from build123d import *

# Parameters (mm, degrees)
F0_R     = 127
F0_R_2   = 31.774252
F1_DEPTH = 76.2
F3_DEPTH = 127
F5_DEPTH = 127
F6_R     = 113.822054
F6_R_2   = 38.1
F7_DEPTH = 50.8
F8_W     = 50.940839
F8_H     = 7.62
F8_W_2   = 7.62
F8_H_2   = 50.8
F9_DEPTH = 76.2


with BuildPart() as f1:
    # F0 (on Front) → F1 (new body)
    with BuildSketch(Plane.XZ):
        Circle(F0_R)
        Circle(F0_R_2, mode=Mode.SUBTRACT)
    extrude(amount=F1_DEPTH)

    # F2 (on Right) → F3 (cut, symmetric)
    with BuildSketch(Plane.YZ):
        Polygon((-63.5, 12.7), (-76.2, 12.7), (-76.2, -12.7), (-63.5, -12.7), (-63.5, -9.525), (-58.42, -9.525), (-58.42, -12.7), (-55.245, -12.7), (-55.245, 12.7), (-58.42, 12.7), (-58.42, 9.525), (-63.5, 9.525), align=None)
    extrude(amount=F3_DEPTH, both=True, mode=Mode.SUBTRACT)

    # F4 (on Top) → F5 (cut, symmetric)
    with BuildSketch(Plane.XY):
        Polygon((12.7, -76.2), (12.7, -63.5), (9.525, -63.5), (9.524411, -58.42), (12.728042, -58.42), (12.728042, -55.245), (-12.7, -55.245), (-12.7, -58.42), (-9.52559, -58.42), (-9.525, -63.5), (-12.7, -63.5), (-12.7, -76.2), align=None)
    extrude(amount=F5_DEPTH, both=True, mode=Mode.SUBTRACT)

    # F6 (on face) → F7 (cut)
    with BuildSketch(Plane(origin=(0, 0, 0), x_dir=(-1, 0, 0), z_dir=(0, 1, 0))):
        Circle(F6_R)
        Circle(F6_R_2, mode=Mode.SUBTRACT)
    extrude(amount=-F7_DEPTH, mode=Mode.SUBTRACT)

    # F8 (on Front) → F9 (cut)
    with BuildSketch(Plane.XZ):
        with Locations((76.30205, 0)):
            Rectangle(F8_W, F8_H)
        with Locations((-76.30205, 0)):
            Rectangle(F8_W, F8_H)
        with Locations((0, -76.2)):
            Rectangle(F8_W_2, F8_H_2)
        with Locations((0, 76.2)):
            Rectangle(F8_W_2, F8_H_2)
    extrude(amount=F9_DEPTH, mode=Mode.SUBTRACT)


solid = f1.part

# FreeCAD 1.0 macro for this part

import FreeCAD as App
import Part
import Sketcher

V = App.Vector
Q = App.Units.Quantity


def add_polygon(sketch, points):
    """Adds a closed chain of lines whose ends are joined by coincident constraints."""
    first, n = sketch.GeometryCount, len(points)
    for a, b in zip(points, points[1:] + points[:1]):
        sketch.addGeometry(Part.LineSegment(App.Vector(*a, 0), App.Vector(*b, 0)), False)
    for i in range(n):
        sketch.addConstraint(Sketcher.Constraint("Coincident", first + i, 2, first + (i + 1) % n, 1))

doc = App.newDocument("Part")
params = doc.addObject("Spreadsheet::Sheet", "Params")
for row, (alias, value) in enumerate([
    ("sketch1_diameter", "10 in"),
    ("pad1_length", "3 in"),
    ("sketch2_height", "1 in"),
    ("sketch2_width", "0.5 in"),
    ("sketch2_width2", "0.2 in"),
    ("sketch2_width3", "0.125 in"),
    ("pocket1_length", "10 in"),
    ("sketch3_width", "1 in"),
    ("sketch3_height", "0.5 in"),
    ("sketch3_length", "0.2 in"),
    ("sketch3_width2", "0.125 in"),
    ("pocket2_length", "10 in"),
    ("sketch4_diameter", "3 in"),
    ("pocket3_length", "2 in"),
    ("sketch5_height", "2 in"),
    ("sketch5_width", "0.3 in"),
    ("pocket4_length", "3 in"),
], start=1):
    params.set(f"A{row}", alias)
    params.set(f"B{row}", "=" + value)
    params.setAlias(f"B{row}", alias)

body = doc.addObject("PartDesign::Body", "Body")

# Sketch on XZ plane
sketch1 = doc.addObject("Sketcher::SketchObject", "Sketch")
body.addObject(sketch1)
sketch1.AttachmentSupport = (doc.XZ_Plane, [""])
sketch1.MapMode = "FlatFace"
sketch1.addGeometry([
    Part.Circle(V(0, 0, 0), V(0, 0, 1), 127),
    Part.Circle(V(0, 0, 0), V(0, 0, 1), 32),
], False)
sketch1.addConstraint([
    Sketcher.Constraint("Coincident", 0, 3, -1, 1),
    Sketcher.Constraint("Coincident", 1, 3, -1, 1),
    Sketcher.Constraint("Diameter", 0, Q("10 in")),
    Sketcher.Constraint("Diameter", 1, 63.548504),
])
sketch1.setExpression("Constraints[2]", "Params.sketch1_diameter")
pad1 = doc.addObject("PartDesign::Pad", "Pad")
body.addObject(pad1)
pad1.Profile = sketch1
pad1.setExpression("Length", "Params.pad1_length")

# Sketch on YZ plane
sketch2 = doc.addObject("Sketcher::SketchObject", "Sketch001")
body.addObject(sketch2)
sketch2.AttachmentSupport = (doc.YZ_Plane, [""])
sketch2.MapMode = "FlatFace"
add_polygon(sketch2, [(-63.5, 12.7), (-76.2, 12.7), (-76.2, -12.7), (-63.5, -12.7), (-63.5, -9.5), (-58.4, -9.5), (-58.4, -12.7), (-55.2, -12.7), (-55.2, 12.7), (-58.4, 12.7), (-58.4, 9.5), (-63.5, 9.5)])  # lines 0-11
sketch2.addConstraint([
    Sketcher.Constraint("Horizontal", 0),
    Sketcher.Constraint("Vertical", 1),
    Sketcher.Constraint("Horizontal", 2),
    Sketcher.Constraint("Vertical", 3),
    Sketcher.Constraint("Horizontal", 4),
    Sketcher.Constraint("Vertical", 5),
    Sketcher.Constraint("Horizontal", 6),
    Sketcher.Constraint("Vertical", 7),
    Sketcher.Constraint("Horizontal", 8),
    Sketcher.Constraint("Vertical", 9),
    Sketcher.Constraint("Horizontal", 10),
    Sketcher.Constraint("Vertical", 11),
    Sketcher.Constraint("Symmetric", 5, 2, 8, 2, -1),
    Sketcher.Constraint("Symmetric", 3, 2, 10, 2, -1),
    Sketcher.Constraint("Horizontal", 2, 2, 5, 2),
    Sketcher.Constraint("Horizontal", 0, 2, 7, 2),
    Sketcher.Constraint("Equal", 8, 3),
    Sketcher.Constraint("DistanceY", 1, 2, 1, 1, Q("1 in")),
    Sketcher.Constraint("DistanceX", 0, 2, 0, 1, Q("0.5 in")),
    Sketcher.Constraint("DistanceX", 4, 1, 4, 2, Q("0.2 in")),
    Sketcher.Constraint("DistanceX", 0, 2, -1, 1, Q("3 in")),
    Sketcher.Constraint("DistanceX", 6, 1, 6, 2, Q("0.125 in")),
])
sketch2.setExpression("Constraints[29]", "Params.sketch2_height")
sketch2.setExpression("Constraints[30]", "Params.sketch2_width")
sketch2.setExpression("Constraints[31]", "Params.sketch2_width2")
sketch2.setExpression("Constraints[33]", "Params.sketch2_width3")
pocket1 = doc.addObject("PartDesign::Pocket", "Pocket")
body.addObject(pocket1)
pocket1.Profile = sketch2
pocket1.setExpression("Length", "Params.pocket1_length")
pocket1.Midplane = True

# Sketch on XY plane
sketch3 = doc.addObject("Sketcher::SketchObject", "Sketch002")
body.addObject(sketch3)
sketch3.AttachmentSupport = (doc.XY_Plane, [""])
sketch3.MapMode = "FlatFace"
add_polygon(sketch3, [(12.7, -76.2), (12.7, -63.5), (9.5, -63.5), (9.5, -58.4), (12.7, -58.4), (12.7, -55.2), (-12.7, -55.2), (-12.7, -58.4), (-9.5, -58.4), (-9.5, -63.5), (-12.7, -63.5), (-12.7, -76.2)])  # lines 0-11
sketch3.addConstraint([
    Sketcher.Constraint("Vertical", 0),
    Sketcher.Constraint("Horizontal", 1),
    Sketcher.Constraint("Horizontal", 3),
    Sketcher.Constraint("Vertical", 4),
    Sketcher.Constraint("Horizontal", 5),
    Sketcher.Constraint("Vertical", 6),
    Sketcher.Constraint("Horizontal", 7),
    Sketcher.Constraint("Horizontal", 9),
    Sketcher.Constraint("Vertical", 10),
    Sketcher.Constraint("Horizontal", 11),
    Sketcher.Constraint("Symmetric", 1, 2, 8, 2, -2),
    Sketcher.Constraint("Parallel", 2, 8),
    Sketcher.Constraint("Horizontal", 3, 2, 6, 2),
    Sketcher.Constraint("Vertical", 6, 2, 9, 2),
    Sketcher.Constraint("Equal", 1, 9),
    Sketcher.Constraint("Equal", 9, 4),
    Sketcher.Constraint("DistanceX", 11, 1, 11, 2, Q("1 in")),
    Sketcher.Constraint("DistanceY", 0, 1, 0, 2, Q("0.5 in")),
    Sketcher.Constraint("DistanceY", 10, 2, -1, 1, Q("3 in")),
    Sketcher.Constraint("Distance", 2, Q("0.2 in")),
    Sketcher.Constraint("DistanceX", 1, 2, 1, 1, Q("0.125 in")),
    Sketcher.Constraint("DistanceX", 3, 1, 3, 2, 3.203631),
    Sketcher.Constraint("DistanceX", 5, 2, 5, 1, 25.428042),
])
sketch3.setExpression("Constraints[28]", "Params.sketch3_width")
sketch3.setExpression("Constraints[29]", "Params.sketch3_height")
sketch3.setExpression("Constraints[31]", "Params.sketch3_length")
sketch3.setExpression("Constraints[32]", "Params.sketch3_width2")
pocket2 = doc.addObject("PartDesign::Pocket", "Pocket001")
body.addObject(pocket2)
pocket2.Profile = sketch3
pocket2.setExpression("Length", "Params.pocket2_length")
pocket2.Midplane = True

# Sketch on XZ plane
sketch4 = doc.addObject("Sketcher::SketchObject", "Sketch003")
body.addObject(sketch4)
sketch4.AttachmentSupport = (doc.XZ_Plane, [""])
sketch4.MapMode = "FlatFace"
sketch4.addGeometry([
    Part.Circle(V(0, 0, 0), V(0, 0, 1), 114),
    Part.Circle(V(0, 0, 0), V(0, 0, 1), 38),
], False)
sketch4.addConstraint([
    Sketcher.Constraint("Coincident", 0, 3, -1, 1),
    Sketcher.Constraint("Coincident", 1, 3, -1, 1),
    Sketcher.Constraint("Diameter", 1, Q("3 in")),
    Sketcher.Constraint("Diameter", 0, 227.644108),
])
sketch4.setExpression("Constraints[2]", "Params.sketch4_diameter")
pocket3 = doc.addObject("PartDesign::Pocket", "Pocket002")
body.addObject(pocket3)
pocket3.Profile = sketch4
pocket3.setExpression("Length", "Params.pocket3_length")
pocket3.Reversed = True

# Sketch on XZ plane
sketch5 = doc.addObject("Sketcher::SketchObject", "Sketch004")
body.addObject(sketch5)
sketch5.AttachmentSupport = (doc.XZ_Plane, [""])
sketch5.MapMode = "FlatFace"
add_polygon(sketch5, [(51, 4), (51, -4), (102, -4), (102, 4)])  # lines 0-3
add_polygon(sketch5, [(-102, 4), (-102, -4), (-51, -4), (-51, 4)])  # lines 4-7
add_polygon(sketch5, [(-4, -51), (-4, -102), (4, -102), (4, -51)])  # lines 8-11
add_polygon(sketch5, [(-4, 102), (-4, 51), (4, 51), (4, 102)])  # lines 12-15
sketch5.addConstraint([
    Sketcher.Constraint("Vertical", 0),
    Sketcher.Constraint("Horizontal", 1),
    Sketcher.Constraint("Vertical", 2),
    Sketcher.Constraint("Horizontal", 3),
    Sketcher.Constraint("Vertical", 4),
    Sketcher.Constraint("Horizontal", 5),
    Sketcher.Constraint("Vertical", 6),
    Sketcher.Constraint("Horizontal", 7),
    Sketcher.Constraint("Vertical", 8),
    Sketcher.Constraint("Horizontal", 9),
    Sketcher.Constraint("Vertical", 10),
    Sketcher.Constraint("Horizontal", 11),
    Sketcher.Constraint("Vertical", 12),
    Sketcher.Constraint("Horizontal", 13),
    Sketcher.Constraint("Vertical", 14),
    Sketcher.Constraint("Horizontal", 15),
    Sketcher.Constraint("Symmetric", 2, 2, 4, 2, -1, 1),
    Sketcher.Constraint("Symmetric", 0, 2, 6, 2, -1, 1),
    Sketcher.Constraint("Symmetric", 10, 2, 12, 2, -1, 1),
    Sketcher.Constraint("Symmetric", 8, 2, 14, 2, -1, 1),
    Sketcher.Constraint("Horizontal", 1, 2, 4, 2),
    Sketcher.Constraint("Vertical", 11, 2, 12, 2),
    Sketcher.Constraint("Equal", 15, 0),
    Sketcher.Constraint("DistanceY", 8, 2, 8, 1, Q("2 in")),
    Sketcher.Constraint("DistanceX", 9, 1, 9, 2, Q("0.3 in")),
    Sketcher.Constraint("DistanceY", 8, 2, -1, 1, Q("4 in")),
    Sketcher.Constraint("DistanceX", 1, 1, 1, 2, 50.940839),
    Sketcher.Constraint("DistanceX", 4, 2, 0, 2, 152.6041),
])
sketch5.setExpression("Constraints[39]", "Params.sketch5_height")
sketch5.setExpression("Constraints[40]", "Params.sketch5_width")
pocket4 = doc.addObject("PartDesign::Pocket", "Pocket003")
body.addObject(pocket4)
pocket4.Profile = sketch5
pocket4.setExpression("Length", "Params.pocket4_length")
pocket4.Reversed = True

doc.recompute()
